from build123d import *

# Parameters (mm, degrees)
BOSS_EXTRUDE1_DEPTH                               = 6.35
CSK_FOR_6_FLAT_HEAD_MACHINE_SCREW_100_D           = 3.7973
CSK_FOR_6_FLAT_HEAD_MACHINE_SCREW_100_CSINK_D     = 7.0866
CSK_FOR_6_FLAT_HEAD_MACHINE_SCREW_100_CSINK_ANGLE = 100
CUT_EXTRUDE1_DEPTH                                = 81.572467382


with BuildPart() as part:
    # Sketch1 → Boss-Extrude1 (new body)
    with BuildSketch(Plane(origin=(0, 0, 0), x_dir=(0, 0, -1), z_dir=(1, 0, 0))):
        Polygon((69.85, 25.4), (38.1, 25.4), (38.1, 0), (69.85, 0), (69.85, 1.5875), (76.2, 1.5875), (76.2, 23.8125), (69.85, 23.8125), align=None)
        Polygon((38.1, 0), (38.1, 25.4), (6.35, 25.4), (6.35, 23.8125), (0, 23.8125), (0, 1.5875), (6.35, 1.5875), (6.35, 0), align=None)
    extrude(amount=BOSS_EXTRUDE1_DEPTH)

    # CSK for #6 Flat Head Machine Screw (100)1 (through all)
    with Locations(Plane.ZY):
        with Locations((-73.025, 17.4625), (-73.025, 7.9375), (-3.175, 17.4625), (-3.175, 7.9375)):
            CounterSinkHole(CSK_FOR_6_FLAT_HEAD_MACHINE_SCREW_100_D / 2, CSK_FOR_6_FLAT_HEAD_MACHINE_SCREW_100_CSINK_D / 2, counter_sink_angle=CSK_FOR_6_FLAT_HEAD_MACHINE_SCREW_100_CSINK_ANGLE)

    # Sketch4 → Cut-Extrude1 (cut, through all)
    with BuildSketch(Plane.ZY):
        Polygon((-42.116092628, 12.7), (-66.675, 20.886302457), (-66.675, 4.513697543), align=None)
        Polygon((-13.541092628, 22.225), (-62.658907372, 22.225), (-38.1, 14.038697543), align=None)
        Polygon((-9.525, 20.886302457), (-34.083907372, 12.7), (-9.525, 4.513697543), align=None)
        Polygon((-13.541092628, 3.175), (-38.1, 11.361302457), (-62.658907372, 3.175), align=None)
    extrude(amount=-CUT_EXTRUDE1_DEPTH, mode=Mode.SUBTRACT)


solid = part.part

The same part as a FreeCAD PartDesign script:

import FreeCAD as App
import Part
import Sketcher

V = App.Vector
Q = App.Units.Quantity


def add_polygon(sketch, points):
    """Adds a closed chain of lines whose ends are joined by coincident constraints."""
    first, n = sketch.GeometryCount, len(points)
    for a, b in zip(points, points[1:] + points[:1]):
        sketch.addGeometry(Part.LineSegment(App.Vector(*a, 0), App.Vector(*b, 0)), False)
    for i in range(n):
        sketch.addConstraint(Sketcher.Constraint("Coincident", first + i, 2, first + (i + 1) % n, 1))

doc = App.newDocument("Part")
body = doc.addObject("PartDesign::Body", "Body")

# Sketch on YZ plane
sketch1 = body.newObject("Sketcher::SketchObject", "Sketch")
sketch1.AttachmentSupport = (doc.getObject("YZ_Plane"), [""])
sketch1.MapMode = "FlatFace"
add_polygon(sketch1, [(25.4, -69.8), (25.4, -6.3), (23.8, -6.3), (23.8, 0), (1.6, 0), (1.6, -6.3), (0, -6.3), (0, -69.8), (1.6, -69.8), (1.6, -76.2), (23.8, -76.2), (23.8, -69.8)])  # lines 0-11
sketch1.addConstraint([
    Sketcher.Constraint("Vertical", 0),
    Sketcher.Constraint("Horizontal", 1),
    Sketcher.Constraint("Vertical", 2),
    Sketcher.Constraint("Horizontal", 3),
    Sketcher.Constraint("Vertical", 4),
    Sketcher.Constraint("Horizontal", 5),
    Sketcher.Constraint("Vertical", 6),
    Sketcher.Constraint("Horizontal", 7),
    Sketcher.Constraint("Vertical", 8),
    Sketcher.Constraint("Horizontal", 9),
    Sketcher.Constraint("Vertical", 10),
    Sketcher.Constraint("Horizontal", 11),
    Sketcher.Constraint("PointOnObject", 2, 2, -1),
    Sketcher.Constraint("PointOnObject", 5, 2, -2),
    Sketcher.Constraint("Horizontal", 1, 2, 4, 2),
    Sketcher.Constraint("Horizontal", 7, 2, 10, 2),
    Sketcher.Constraint("Vertical", 4, 2, 7, 2),
    Sketcher.Constraint("Vertical", 2, 2, 9, 2),
    Sketcher.Constraint("Equal", 1, 5),
    Sketcher.Constraint("Equal", 4, 8),
    Sketcher.Constraint("DistanceY", 0, 1, 0, 2, Q("2.5 in")),
    Sketcher.Constraint("DistanceX", -1, 1, 0, 2, Q("1 in")),
    Sketcher.Constraint("DistanceY", 8, 2, -1, 1, Q("3 in")),
    Sketcher.Constraint("DistanceX", 1, 2, 1, 1, Q("0.0625 in")),
])
pad1 = body.newObject("PartDesign::Pad", "Pad")
pad1.Profile = sketch1
pad1.Length = Q("0.25 in")

# Sketch on YZ plane
sketch2 = body.newObject("Sketcher::SketchObject", "Sketch001")
sketch2.AttachmentSupport = (doc.getObject("YZ_Plane"), [""])
sketch2.MapMode = "FlatFace"
sketch2.addGeometry([
    Part.Circle(V(17.5, -73, 0), V(0, 0, 1), 1.9),
    Part.Circle(V(7.9, -73, 0), V(0, 0, 1), 1.9),
    Part.Circle(V(17.5, -3.2, 0), V(0, 0, 1), 1.9),
    Part.Circle(V(7.9, -3.2, 0), V(0, 0, 1), 1.9),
], False)
sketch2.addConstraint([
    Sketcher.Constraint("Equal", 0, 1),
    Sketcher.Constraint("Equal", 1, 2),
    Sketcher.Constraint("Equal", 2, 3),
    Sketcher.Constraint("Horizontal", 0, 3, 1, 3),
    Sketcher.Constraint("Horizontal", 2, 3, 3, 3),
    Sketcher.Constraint("Vertical", 0, 3, 2, 3),
    Sketcher.Constraint("Vertical", 1, 3, 3, 3),
    Sketcher.Constraint("Diameter", 0, Q("0.1495 in")),
    Sketcher.Constraint("DistanceY", 0, 3, 2, 3, Q("2.75 in")),
    Sketcher.Constraint("DistanceX", -1, 1, 0, 3, Q("0.6875 in")),
    Sketcher.Constraint("DistanceY", 0, 3, -1, 1, Q("2.875 in")),
    Sketcher.Constraint("DistanceX", -1, 1, 1, 3, Q("0.3125 in")),
])
doc.recompute()
hole = body.newObject("PartDesign::Hole", "Hole")
hole.Profile = sketch2
hole.ThreadType = "None"
hole.Diameter = Q("0.1495 in")
hole.DepthType = "ThroughAll"
hole.HoleCutType = "Countersink"
hole.HoleCutDiameter = Q("0.279 in")
hole.HoleCutCountersinkAngle = 100
hole.Reversed = True

# Sketch on YZ plane
sketch3 = body.newObject("Sketcher::SketchObject", "Sketch002")
sketch3.AttachmentSupport = (doc.getObject("YZ_Plane"), [""])
sketch3.MapMode = "FlatFace"
add_polygon(sketch3, [(13, -42), (21, -67), (5, -67)])  # lines 0-2
add_polygon(sketch3, [(22, -14), (22, -63), (14, -38)])  # lines 3-5
add_polygon(sketch3, [(21, -10), (13, -34), (5, -10)])  # lines 6-8
add_polygon(sketch3, [(3, -14), (11, -38), (3, -63)])  # lines 9-11
sketch3.addConstraint([
    Sketcher.Constraint("Horizontal", 1),
    Sketcher.Constraint("Vertical", 3),
    Sketcher.Constraint("Horizontal", 8),
    Sketcher.Constraint("Vertical", 11),
    Sketcher.Constraint("Parallel", 0, 4),
    Sketcher.Constraint("Parallel", 2, 5),
    Sketcher.Constraint("Parallel", 5, 6),
    Sketcher.Constraint("Parallel", 4, 7),
    Sketcher.Constraint("Parallel", 7, 9),
    Sketcher.Constraint("Parallel", 6, 10),
    Sketcher.Constraint("Horizontal", 4, 2, 9, 2),
    Sketcher.Constraint("Horizontal", 3, 2, 10, 2),
    Sketcher.Constraint("Horizontal", 5, 2, 11, 2),
    Sketcher.Constraint("Vertical", 2, 2, 6, 2),
    Sketcher.Constraint("Vertical", 1, 2, 7, 2),
    Sketcher.Constraint("Equal", 2, 4),
    Sketcher.Constraint("DistanceX", -1, 1, 2, 2, Q("0.5 in")),
    Sketcher.Constraint("DistanceY", 4, 2, -1, 1, Q("1.5 in")),
    Sketcher.Constraint("DistanceX", 10, 2, 3, 2, Q("0.75 in")),
    Sketcher.Constraint("DistanceY", 0, 2, -1, 1, Q("2.625 in")),
    Sketcher.Constraint("DistanceX", -1, 1, 3, 2, Q("0.875 in")),
    Sketcher.Constraint("DistanceY", 7, 2, -1, 1, Q("0.375 in")),
    Sketcher.Constraint("Distance", 0, 25.887361),
    Sketcher.Constraint("DistanceX", 1, 2, 1, 1, 16.372605),
])
pocket1 = body.newObject("PartDesign::Pocket", "Pocket")
pocket1.Profile = sketch3
pocket1.Type = "ThroughAll"
pocket1.Reversed = True

doc.recompute()
